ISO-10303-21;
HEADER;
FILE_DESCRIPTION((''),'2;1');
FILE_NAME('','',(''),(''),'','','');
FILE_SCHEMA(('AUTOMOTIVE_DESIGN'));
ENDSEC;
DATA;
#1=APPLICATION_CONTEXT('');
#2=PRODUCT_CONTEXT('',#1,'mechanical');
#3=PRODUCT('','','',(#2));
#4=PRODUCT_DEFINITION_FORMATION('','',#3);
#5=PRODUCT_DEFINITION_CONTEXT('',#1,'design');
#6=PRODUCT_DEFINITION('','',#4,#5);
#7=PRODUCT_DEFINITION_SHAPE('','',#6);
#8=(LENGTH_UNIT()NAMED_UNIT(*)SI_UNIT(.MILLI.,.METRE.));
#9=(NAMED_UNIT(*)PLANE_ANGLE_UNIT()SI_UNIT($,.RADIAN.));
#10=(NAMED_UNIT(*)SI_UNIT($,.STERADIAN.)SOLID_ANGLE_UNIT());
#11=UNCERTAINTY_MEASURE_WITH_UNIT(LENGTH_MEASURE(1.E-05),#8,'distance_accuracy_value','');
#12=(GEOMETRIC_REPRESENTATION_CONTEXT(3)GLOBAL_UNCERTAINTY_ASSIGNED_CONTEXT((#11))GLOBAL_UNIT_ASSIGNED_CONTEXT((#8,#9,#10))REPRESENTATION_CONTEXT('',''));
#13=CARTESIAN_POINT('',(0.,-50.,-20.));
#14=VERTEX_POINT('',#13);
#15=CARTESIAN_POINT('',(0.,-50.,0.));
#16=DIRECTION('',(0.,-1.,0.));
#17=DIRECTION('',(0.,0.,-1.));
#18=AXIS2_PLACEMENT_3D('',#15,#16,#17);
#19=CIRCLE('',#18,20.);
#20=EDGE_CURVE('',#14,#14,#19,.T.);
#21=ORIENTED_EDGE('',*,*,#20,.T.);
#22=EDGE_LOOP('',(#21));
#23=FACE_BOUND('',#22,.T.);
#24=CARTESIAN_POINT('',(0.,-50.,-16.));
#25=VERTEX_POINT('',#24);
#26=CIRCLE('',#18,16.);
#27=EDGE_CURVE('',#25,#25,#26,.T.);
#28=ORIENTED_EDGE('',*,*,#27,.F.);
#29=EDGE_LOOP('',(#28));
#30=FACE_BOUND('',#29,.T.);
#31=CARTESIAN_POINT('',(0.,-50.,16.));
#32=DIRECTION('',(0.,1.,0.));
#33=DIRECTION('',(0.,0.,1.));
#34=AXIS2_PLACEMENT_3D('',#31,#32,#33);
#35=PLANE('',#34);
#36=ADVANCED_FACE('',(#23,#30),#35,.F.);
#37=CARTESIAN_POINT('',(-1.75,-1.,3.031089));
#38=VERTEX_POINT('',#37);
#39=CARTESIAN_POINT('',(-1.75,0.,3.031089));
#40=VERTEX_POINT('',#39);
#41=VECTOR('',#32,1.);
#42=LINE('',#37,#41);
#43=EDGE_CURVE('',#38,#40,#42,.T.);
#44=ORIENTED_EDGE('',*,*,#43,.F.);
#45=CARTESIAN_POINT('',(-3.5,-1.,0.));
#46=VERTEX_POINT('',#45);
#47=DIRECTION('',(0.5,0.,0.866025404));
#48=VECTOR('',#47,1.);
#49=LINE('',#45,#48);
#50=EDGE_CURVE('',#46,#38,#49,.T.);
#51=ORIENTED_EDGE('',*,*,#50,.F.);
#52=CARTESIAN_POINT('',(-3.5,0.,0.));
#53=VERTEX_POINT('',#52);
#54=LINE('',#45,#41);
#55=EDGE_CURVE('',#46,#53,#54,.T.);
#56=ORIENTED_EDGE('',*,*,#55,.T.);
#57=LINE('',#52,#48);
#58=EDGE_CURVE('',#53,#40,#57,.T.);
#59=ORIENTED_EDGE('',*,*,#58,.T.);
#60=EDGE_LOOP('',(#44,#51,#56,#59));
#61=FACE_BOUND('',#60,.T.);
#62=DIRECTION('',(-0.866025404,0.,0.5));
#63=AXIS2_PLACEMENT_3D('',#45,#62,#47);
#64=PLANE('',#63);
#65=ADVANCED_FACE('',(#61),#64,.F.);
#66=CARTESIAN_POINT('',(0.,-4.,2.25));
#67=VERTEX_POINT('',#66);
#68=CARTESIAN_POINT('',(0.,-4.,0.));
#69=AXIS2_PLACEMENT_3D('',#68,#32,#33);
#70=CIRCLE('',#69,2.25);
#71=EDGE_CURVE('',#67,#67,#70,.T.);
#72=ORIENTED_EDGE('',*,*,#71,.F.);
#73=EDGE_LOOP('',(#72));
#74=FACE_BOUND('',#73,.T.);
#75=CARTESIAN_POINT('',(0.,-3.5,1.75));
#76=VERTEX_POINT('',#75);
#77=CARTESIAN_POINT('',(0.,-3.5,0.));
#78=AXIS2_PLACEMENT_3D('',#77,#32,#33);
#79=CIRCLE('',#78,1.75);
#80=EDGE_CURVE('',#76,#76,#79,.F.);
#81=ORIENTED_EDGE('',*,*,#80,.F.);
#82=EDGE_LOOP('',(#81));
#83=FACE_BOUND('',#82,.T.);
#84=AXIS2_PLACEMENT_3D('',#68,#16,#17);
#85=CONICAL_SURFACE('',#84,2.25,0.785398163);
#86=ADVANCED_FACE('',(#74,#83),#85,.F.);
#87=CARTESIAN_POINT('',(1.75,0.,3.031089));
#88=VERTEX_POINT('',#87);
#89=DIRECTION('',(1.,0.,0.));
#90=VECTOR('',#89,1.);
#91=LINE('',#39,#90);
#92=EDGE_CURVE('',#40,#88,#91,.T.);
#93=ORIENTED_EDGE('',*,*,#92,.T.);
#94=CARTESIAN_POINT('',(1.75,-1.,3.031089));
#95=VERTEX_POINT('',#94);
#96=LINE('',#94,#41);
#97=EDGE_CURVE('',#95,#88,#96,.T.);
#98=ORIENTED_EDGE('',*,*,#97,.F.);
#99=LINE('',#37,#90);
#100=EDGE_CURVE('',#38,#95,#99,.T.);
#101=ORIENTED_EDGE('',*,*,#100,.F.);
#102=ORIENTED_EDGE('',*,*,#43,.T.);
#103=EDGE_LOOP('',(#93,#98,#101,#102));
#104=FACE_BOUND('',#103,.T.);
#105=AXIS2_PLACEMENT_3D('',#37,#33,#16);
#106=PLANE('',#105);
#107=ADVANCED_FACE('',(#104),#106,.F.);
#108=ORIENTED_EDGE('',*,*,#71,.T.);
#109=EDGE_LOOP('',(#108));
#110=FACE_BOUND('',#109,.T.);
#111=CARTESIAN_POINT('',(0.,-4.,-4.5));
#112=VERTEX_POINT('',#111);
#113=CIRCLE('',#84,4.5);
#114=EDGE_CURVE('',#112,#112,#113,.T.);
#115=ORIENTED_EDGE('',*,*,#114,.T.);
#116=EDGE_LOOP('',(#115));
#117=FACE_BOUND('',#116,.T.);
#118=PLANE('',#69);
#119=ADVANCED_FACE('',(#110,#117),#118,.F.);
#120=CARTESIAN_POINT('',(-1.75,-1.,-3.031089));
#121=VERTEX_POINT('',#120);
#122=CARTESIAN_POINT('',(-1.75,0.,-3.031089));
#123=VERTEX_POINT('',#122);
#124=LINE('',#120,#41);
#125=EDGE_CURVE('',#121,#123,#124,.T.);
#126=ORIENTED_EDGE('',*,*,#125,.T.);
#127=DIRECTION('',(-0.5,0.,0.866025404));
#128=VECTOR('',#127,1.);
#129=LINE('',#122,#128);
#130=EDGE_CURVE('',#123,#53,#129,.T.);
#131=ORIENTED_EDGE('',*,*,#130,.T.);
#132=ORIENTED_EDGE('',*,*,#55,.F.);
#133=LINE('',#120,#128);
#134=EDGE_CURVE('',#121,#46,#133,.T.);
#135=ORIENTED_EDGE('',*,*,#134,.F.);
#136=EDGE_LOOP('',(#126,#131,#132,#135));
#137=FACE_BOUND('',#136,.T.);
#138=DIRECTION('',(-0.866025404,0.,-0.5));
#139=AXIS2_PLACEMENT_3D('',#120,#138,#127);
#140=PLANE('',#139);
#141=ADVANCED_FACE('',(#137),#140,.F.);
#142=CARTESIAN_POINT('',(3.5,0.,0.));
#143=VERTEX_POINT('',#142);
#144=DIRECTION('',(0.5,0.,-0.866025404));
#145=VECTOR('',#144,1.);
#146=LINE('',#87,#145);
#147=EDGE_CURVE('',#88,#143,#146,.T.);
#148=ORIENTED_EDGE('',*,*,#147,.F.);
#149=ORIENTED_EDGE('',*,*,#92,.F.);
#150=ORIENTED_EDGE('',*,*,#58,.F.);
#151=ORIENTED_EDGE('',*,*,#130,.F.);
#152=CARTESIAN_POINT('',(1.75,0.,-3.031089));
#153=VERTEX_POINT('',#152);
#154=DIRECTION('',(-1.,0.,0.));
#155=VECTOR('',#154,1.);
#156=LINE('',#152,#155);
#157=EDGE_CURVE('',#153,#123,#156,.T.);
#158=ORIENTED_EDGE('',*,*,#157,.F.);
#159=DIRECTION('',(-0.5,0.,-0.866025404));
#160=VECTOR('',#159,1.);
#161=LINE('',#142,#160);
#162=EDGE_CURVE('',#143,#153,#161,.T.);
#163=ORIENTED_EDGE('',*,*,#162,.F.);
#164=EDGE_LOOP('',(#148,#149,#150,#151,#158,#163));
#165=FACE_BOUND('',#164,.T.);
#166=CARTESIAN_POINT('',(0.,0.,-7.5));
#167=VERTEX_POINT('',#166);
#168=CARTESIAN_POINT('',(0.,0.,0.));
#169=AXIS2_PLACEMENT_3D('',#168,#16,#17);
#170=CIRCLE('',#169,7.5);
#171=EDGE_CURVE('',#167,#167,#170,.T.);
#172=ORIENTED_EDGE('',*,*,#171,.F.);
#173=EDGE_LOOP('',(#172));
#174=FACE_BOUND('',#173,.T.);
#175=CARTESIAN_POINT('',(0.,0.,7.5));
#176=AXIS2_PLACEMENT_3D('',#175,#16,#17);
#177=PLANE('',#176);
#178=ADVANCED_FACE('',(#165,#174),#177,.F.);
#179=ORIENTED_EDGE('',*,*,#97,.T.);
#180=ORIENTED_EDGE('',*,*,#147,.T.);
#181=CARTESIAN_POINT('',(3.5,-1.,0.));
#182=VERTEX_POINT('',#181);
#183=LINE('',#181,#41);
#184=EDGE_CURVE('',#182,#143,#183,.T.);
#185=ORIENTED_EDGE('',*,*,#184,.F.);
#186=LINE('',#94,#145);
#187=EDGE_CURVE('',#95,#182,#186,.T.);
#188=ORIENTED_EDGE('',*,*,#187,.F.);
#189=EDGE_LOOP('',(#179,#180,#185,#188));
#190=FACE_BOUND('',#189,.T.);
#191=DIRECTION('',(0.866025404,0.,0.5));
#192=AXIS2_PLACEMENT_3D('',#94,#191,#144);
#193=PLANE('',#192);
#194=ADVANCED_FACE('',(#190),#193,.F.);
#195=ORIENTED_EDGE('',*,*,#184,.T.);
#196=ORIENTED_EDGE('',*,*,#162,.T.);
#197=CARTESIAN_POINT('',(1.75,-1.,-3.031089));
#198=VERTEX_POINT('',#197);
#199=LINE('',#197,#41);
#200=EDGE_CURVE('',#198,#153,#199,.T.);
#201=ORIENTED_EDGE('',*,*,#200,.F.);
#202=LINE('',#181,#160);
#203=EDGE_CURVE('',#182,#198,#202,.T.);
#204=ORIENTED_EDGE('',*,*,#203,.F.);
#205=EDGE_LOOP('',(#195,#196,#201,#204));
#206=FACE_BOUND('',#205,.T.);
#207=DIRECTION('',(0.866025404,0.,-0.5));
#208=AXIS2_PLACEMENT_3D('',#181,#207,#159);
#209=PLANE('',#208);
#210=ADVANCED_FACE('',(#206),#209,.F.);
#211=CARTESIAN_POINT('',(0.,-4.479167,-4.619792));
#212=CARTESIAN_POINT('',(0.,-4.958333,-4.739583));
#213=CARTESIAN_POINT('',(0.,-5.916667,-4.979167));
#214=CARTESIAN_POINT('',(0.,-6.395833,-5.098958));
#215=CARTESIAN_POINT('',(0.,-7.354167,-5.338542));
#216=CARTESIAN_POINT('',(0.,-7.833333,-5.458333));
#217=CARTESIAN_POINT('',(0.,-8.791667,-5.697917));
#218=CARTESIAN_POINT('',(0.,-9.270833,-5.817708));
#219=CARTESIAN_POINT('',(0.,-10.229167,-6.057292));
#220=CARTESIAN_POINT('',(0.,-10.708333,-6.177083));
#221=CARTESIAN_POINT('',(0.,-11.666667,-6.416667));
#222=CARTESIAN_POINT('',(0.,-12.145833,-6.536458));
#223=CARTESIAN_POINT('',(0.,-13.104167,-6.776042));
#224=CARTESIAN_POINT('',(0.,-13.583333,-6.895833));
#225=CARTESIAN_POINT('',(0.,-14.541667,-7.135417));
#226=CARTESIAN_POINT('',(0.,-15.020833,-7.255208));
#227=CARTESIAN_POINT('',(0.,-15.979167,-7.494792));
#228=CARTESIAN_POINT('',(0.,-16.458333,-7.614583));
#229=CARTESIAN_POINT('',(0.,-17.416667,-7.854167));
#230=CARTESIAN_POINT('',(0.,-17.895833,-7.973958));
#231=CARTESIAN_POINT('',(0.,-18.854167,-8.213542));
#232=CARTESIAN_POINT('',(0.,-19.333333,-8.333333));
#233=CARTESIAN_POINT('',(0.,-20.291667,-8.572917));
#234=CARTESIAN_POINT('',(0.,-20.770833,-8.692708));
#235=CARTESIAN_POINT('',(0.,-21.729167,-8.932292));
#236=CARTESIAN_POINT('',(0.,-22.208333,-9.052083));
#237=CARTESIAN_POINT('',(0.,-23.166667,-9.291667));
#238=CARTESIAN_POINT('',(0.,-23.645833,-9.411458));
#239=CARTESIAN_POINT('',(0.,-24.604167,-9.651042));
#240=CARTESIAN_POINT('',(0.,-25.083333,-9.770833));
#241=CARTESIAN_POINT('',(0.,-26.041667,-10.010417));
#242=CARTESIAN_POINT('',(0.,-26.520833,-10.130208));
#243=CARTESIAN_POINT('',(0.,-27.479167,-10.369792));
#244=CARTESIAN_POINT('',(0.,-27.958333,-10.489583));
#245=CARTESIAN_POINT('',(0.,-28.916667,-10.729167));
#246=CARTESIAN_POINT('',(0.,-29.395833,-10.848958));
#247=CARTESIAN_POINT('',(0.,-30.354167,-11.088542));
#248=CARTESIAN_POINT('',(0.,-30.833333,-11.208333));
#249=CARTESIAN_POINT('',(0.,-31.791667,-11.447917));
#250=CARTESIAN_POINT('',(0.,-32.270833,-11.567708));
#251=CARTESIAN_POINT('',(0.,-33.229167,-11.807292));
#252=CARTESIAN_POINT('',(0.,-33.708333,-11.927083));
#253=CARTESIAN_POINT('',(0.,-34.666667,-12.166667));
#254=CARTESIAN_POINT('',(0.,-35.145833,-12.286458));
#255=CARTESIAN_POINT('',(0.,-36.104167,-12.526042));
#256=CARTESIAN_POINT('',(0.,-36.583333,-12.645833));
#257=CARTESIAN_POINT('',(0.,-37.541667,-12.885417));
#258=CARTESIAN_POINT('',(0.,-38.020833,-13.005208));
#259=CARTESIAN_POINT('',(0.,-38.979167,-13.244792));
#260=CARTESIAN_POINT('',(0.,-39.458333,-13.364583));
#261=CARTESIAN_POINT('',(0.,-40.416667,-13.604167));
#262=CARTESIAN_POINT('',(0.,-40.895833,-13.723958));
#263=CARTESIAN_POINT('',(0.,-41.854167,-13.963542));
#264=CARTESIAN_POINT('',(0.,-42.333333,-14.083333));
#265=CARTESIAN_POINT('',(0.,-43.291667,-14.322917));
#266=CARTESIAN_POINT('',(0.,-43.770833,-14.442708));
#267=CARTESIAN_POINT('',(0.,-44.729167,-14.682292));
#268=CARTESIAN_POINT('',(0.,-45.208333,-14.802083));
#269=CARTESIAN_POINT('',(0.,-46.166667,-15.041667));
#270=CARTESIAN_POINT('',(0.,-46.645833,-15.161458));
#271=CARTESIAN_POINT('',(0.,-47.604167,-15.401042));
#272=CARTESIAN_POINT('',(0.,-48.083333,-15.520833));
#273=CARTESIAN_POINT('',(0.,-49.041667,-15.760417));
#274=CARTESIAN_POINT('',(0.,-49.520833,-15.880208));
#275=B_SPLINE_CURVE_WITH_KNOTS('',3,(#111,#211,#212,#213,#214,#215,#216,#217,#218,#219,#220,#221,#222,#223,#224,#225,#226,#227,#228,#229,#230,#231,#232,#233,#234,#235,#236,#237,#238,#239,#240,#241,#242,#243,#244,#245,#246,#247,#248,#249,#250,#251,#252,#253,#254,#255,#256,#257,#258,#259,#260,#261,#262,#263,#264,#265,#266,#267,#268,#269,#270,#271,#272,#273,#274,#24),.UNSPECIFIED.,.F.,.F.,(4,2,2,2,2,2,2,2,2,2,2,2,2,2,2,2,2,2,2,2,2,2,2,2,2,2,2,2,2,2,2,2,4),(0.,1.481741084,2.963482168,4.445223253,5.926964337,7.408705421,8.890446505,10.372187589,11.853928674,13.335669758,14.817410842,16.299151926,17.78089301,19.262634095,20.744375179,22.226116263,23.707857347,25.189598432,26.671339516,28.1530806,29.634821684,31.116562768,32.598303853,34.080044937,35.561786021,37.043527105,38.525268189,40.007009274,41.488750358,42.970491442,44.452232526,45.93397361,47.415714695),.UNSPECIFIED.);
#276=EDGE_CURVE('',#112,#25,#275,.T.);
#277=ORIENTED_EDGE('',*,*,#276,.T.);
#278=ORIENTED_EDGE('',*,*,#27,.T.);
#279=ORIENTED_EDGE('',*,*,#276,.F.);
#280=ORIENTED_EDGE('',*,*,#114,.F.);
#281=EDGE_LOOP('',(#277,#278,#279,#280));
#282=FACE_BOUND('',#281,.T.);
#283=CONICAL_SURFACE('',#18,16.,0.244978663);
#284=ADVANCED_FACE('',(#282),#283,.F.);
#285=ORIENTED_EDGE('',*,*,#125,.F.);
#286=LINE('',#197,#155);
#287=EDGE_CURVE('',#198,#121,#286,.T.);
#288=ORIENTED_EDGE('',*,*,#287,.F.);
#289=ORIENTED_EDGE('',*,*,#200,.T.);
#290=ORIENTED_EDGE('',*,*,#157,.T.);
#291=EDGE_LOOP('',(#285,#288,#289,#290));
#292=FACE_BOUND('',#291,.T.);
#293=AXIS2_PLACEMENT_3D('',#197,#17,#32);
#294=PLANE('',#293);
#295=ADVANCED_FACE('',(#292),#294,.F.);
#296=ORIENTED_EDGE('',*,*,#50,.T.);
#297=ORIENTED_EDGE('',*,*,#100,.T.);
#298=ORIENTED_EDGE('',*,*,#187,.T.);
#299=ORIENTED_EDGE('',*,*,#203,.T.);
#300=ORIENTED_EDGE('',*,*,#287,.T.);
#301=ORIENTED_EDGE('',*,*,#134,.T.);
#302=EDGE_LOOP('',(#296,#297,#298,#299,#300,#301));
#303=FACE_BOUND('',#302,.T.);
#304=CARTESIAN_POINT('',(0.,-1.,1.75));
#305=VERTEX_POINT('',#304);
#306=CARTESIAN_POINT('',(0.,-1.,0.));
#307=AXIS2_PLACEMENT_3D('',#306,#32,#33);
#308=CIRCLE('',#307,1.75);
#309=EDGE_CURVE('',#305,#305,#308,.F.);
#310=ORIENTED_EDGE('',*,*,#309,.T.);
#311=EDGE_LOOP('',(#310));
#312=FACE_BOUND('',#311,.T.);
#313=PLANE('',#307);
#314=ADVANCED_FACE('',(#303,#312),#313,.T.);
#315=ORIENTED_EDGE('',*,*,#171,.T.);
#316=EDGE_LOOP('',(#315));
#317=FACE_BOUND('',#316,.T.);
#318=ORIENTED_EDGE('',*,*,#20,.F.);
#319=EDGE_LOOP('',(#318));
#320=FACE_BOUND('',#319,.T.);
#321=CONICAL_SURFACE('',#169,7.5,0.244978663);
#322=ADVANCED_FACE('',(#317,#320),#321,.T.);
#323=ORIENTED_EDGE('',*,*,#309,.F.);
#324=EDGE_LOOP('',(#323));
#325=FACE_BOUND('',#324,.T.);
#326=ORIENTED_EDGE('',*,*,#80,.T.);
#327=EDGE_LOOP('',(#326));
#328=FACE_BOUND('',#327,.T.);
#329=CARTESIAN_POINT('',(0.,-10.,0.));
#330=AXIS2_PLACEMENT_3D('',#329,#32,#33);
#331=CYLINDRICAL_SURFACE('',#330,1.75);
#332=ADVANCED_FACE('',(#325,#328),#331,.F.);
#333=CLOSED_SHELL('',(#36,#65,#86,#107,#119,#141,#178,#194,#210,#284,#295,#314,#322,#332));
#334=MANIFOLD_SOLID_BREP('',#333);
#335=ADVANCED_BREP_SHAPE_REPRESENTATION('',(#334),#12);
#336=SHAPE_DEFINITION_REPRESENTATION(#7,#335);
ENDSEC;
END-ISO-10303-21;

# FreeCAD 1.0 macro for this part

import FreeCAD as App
import Part
import Sketcher
Q = App.Units.Quantity


def edges_at(feature, points):
    """Names of the edges that pass closest to the given points."""
    edges = feature.Shape.Edges
    near = lambda p: min(range(len(edges)), key=lambda i: edges[i].distToShape(Part.Vertex(*p))[0])
    return sorted({f"Edge{near(p) + 1}" for p in points})


def add_polygon(sketch, points):
    """Adds a closed chain of lines whose ends are joined by coincident constraints."""
    first, n = sketch.GeometryCount, len(points)
    for a, b in zip(points, points[1:] + points[:1]):
        sketch.addGeometry(Part.LineSegment(App.Vector(*a, 0), App.Vector(*b, 0)), False)
    for i in range(n):
        sketch.addConstraint(Sketcher.Constraint("Coincident", first + i, 2, first + (i + 1) % n, 1))

doc = App.newDocument("Part")
body = doc.addObject("PartDesign::Body", "Body")

# Sketch on YZ plane
sketch1 = body.newObject("Sketcher::SketchObject", "Sketch")
sketch1.AttachmentSupport = (doc.getObject("YZ_Plane"), [""])
sketch1.MapMode = "FlatFace"
add_polygon(sketch1, [(0, 0), (0, 7.5), (-50, 20), (-50, 16), (-4, 4.5), (-4, 0)])  # lines 0-5
sketch1.addConstraint([
    Sketcher.Constraint("Vertical", 0),
    Sketcher.Constraint("Vertical", 2),
    Sketcher.Constraint("Vertical", 4),
    Sketcher.Constraint("Horizontal", 5),
    Sketcher.Constraint("Coincident", 5, 2, -1, 1),
    Sketcher.Constraint("Parallel", 1, 3),
    Sketcher.Constraint("Equal", 5, 2),
    Sketcher.Constraint("DistanceX", 5, 1, 5, 2, Q("4 mm")),
    Sketcher.Constraint("DistanceY", 0, 1, 0, 2, Q("7.5 mm")),
    Sketcher.Constraint("DistanceY", 4, 2, 4, 1, Q("4.5 mm")),
    Sketcher.Constraint("DistanceX", 1, 2, -1, 1, Q("50 mm")),
])
revolution = body.newObject("PartDesign::Revolution", "Revolution")
revolution.Profile = sketch1
revolution.ReferenceAxis = (sketch1, ["H_Axis"])
revolution.Angle = 360

# Sketch on XZ plane
sketch2 = body.newObject("Sketcher::SketchObject", "Sketch001")
sketch2.AttachmentSupport = (doc.getObject("XZ_Plane"), [""])
sketch2.MapMode = "FlatFace"
sketch2.addGeometry(Part.Circle(App.Vector(0, 0, 0), App.Vector(0, 0, 1), 1.8), False)
sketch2.addConstraint([
    Sketcher.Constraint("Coincident", 0, 3, -1, 1),
    Sketcher.Constraint("Diameter", 0, Q("3.5 mm")),
])
pocket1 = body.newObject("PartDesign::Pocket", "Pocket")
pocket1.Profile = sketch2
pocket1.Length = 10
pocket1.Reversed = True

# Sketch on XZ plane
sketch3 = body.newObject("Sketcher::SketchObject", "Sketch002")
sketch3.AttachmentSupport = (doc.getObject("XZ_Plane"), [""])
sketch3.MapMode = "FlatFace"
add_polygon(sketch3, [(3.5, 0), (1.8, -3), (-1.8, -3), (-3.5, 0), (-1.8, 3), (1.8, 3)])  # lines 0-5
sketch3.addConstraint([
    Sketcher.Constraint("Horizontal", 1),
    Sketcher.Constraint("Horizontal", 4),
    Sketcher.Constraint("Symmetric", 0, 2, 3, 2, -1, 1),
    Sketcher.Constraint("Symmetric", 2, 2, 5, 2, -1, 1),
    Sketcher.Constraint("PointOnObject", 2, 2, -1),
    Sketcher.Constraint("Parallel", 2, 5),
    Sketcher.Constraint("Vertical", 1, 2, 3, 2),
    Sketcher.Constraint("Angle", 0, Q("-120 deg")),
    Sketcher.Constraint("DistanceX", 1, 2, 1, 1, Q("3.5 mm")),
    Sketcher.Constraint("DistanceX", 2, 2, 5, 2, Q("7 mm")),
])
pocket2 = body.newObject("PartDesign::Pocket", "Pocket001")
pocket2.Profile = sketch3
pocket2.Length = 1
pocket2.Reversed = True
doc.recompute()

chamfer = body.newObject("PartDesign::Chamfer", "Chamfer")
chamfer.Base = (pocket2, edges_at(pocket2, [(0, -4, -1.75)]))
chamfer.Size = 0.5

doc.recompute()
